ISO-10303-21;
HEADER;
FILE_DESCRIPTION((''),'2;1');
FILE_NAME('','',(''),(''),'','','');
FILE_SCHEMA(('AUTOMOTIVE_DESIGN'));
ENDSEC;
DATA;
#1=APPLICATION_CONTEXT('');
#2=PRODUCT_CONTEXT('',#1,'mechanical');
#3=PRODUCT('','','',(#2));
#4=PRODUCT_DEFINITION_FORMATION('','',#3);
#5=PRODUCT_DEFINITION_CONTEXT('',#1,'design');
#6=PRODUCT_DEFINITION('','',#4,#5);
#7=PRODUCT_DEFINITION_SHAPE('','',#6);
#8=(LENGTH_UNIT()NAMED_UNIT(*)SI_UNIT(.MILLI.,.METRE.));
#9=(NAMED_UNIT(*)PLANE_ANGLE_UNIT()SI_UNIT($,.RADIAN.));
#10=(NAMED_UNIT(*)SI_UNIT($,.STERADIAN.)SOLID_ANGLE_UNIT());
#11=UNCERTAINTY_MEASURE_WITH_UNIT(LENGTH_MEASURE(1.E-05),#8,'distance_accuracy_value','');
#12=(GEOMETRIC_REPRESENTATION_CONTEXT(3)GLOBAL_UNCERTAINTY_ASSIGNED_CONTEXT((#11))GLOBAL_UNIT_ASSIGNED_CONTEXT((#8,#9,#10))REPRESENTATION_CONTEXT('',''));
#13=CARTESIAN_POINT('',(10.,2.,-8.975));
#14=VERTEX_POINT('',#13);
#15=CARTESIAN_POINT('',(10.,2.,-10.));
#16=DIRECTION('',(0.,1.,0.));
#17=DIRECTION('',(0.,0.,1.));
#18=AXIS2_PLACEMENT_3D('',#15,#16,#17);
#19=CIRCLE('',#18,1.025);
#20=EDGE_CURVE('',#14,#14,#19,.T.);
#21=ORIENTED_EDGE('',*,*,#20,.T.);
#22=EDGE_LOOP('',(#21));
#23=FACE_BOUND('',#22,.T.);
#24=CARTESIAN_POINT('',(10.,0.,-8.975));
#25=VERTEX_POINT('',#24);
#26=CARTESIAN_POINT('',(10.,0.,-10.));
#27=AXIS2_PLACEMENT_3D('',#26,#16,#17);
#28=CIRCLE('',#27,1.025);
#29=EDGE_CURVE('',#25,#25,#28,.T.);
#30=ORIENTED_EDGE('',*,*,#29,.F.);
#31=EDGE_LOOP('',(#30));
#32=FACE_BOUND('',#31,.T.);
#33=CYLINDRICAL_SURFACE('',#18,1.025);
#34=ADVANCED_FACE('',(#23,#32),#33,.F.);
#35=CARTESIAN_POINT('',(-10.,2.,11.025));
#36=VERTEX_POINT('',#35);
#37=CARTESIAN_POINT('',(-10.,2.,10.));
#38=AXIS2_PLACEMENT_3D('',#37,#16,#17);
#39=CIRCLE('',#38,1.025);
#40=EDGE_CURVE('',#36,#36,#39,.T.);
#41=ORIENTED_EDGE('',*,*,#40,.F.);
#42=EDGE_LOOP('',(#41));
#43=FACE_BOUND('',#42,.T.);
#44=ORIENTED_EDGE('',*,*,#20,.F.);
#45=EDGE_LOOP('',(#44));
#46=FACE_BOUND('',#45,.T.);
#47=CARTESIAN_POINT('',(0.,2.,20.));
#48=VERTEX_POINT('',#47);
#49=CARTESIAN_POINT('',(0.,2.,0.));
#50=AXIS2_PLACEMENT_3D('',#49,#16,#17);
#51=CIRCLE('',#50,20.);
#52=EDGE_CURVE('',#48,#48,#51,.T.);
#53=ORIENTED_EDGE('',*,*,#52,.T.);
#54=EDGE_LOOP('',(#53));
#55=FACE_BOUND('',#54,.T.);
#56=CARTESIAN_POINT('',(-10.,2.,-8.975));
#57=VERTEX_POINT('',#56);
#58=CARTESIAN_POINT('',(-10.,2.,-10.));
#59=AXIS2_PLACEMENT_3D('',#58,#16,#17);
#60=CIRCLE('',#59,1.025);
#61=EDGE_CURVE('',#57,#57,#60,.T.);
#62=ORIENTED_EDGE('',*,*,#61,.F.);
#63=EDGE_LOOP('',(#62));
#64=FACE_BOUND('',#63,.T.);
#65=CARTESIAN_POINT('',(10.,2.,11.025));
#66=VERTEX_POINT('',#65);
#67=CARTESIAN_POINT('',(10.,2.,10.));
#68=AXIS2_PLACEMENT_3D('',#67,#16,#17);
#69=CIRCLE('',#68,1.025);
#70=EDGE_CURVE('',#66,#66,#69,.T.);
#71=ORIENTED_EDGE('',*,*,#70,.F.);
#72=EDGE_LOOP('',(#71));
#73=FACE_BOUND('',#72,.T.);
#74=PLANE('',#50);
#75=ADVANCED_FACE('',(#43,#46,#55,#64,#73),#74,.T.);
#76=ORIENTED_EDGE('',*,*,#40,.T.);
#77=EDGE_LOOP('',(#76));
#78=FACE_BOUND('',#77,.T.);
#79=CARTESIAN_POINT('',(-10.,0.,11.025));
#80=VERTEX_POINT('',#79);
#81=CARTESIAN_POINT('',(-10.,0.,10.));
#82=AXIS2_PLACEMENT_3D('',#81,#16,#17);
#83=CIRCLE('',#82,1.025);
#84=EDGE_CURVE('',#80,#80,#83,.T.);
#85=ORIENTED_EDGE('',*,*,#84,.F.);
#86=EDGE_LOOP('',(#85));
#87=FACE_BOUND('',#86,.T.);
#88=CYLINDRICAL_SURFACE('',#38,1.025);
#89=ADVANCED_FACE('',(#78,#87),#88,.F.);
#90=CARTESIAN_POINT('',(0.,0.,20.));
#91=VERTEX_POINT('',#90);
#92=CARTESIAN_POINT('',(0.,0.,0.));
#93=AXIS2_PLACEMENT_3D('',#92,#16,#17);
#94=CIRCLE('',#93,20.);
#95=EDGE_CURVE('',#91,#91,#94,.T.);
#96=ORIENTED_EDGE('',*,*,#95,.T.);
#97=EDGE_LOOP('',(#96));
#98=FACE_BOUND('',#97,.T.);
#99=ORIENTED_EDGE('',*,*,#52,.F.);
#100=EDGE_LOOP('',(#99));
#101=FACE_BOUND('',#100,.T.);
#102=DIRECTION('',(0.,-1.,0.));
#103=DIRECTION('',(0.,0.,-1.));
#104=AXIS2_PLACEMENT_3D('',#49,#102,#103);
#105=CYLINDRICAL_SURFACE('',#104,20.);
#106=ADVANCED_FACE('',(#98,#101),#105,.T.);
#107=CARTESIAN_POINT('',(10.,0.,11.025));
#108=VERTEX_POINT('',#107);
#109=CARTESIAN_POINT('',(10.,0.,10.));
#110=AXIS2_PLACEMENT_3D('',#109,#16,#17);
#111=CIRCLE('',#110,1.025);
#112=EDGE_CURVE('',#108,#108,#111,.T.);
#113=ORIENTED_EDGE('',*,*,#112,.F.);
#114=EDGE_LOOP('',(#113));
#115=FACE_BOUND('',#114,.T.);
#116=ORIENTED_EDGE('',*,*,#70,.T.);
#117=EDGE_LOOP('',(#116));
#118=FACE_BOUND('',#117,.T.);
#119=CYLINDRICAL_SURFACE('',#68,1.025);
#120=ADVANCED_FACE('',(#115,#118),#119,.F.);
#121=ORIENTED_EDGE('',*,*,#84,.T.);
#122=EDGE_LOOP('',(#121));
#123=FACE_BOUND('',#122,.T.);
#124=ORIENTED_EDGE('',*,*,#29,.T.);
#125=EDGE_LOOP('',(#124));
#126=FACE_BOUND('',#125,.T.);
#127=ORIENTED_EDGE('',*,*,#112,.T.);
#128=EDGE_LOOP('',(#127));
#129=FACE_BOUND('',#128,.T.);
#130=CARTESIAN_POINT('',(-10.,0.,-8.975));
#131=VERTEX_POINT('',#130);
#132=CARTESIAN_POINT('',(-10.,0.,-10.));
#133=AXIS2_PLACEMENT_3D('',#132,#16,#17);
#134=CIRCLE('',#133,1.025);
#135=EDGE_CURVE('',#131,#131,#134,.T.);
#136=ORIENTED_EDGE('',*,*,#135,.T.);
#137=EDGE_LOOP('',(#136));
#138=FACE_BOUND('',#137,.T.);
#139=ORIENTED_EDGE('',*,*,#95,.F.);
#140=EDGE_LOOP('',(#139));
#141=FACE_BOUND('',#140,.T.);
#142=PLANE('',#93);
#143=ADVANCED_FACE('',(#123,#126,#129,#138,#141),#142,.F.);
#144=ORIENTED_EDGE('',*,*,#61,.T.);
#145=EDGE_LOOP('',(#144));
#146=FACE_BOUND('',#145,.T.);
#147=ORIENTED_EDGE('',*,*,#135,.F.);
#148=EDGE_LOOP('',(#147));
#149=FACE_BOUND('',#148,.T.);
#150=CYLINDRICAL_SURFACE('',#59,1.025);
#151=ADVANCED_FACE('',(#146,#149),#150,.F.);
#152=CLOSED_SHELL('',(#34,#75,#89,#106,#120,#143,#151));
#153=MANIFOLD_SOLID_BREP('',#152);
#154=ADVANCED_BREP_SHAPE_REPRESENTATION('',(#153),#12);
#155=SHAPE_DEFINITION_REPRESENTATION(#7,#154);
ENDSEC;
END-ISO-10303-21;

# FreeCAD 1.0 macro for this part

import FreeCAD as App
import Part
import Sketcher

V = App.Vector
Q = App.Units.Quantity

doc = App.newDocument("Part")
body = doc.addObject("PartDesign::Body", "Body")

# Sketch on XZ plane
sketch1 = body.newObject("Sketcher::SketchObject", "Sketch")
sketch1.AttachmentSupport = (doc.getObject("XZ_Plane"), [""])
sketch1.MapMode = "FlatFace"
sketch1.addGeometry(Part.Circle(V(0, 0, 0), V(0, 0, 1), 20), False)
sketch1.addConstraint([
    Sketcher.Constraint("Coincident", 0, 3, -1, 1),
    Sketcher.Constraint("Diameter", 0, Q("40 mm")),
])
pad1 = body.newObject("PartDesign::Pad", "Pad")
pad1.Profile = sketch1
pad1.Length = 2
pad1.Reversed = True

# Sketch on XZ plane
sketch2 = body.newObject("Sketcher::SketchObject", "Sketch001")
sketch2.AttachmentSupport = (doc.getObject("XZ_Plane"), [""])
sketch2.MapMode = "FlatFace"
sketch2.AttachmentOffset = App.Placement(V(0, 0, -2), App.Rotation())
sketch2.addGeometry([
    Part.Circle(V(-10, -10, 0), V(0, 0, 1), 1),
    Part.Circle(V(10, -10, 0), V(0, 0, 1), 1),
    Part.Circle(V(-10, 10, 0), V(0, 0, 1), 1),
    Part.Circle(V(10, 10, 0), V(0, 0, 1), 1),
], False)
sketch2.addConstraint([
    Sketcher.Constraint("Equal", 0, 1),
    Sketcher.Constraint("Equal", 1, 2),
    Sketcher.Constraint("Equal", 2, 3),
    Sketcher.Constraint("Symmetric", 1, 3, 2, 3, -1, 1),
    Sketcher.Constraint("Symmetric", 0, 3, 3, 3, -1, 1),
    Sketcher.Constraint("Symmetric", 0, 3, 1, 3, -2),
    Sketcher.Constraint("Diameter", 0, Q("2.05 mm")),
    Sketcher.Constraint("DistanceX", 0, 3, -1, 1, Q("10 mm")),
    Sketcher.Constraint("DistanceY", 0, 3, -1, 1, Q("10 mm")),
])
doc.recompute()
hole = body.newObject("PartDesign::Hole", "Hole")
hole.Profile = sketch2
hole.ThreadType = "None"
hole.Diameter = 2.05
hole.DepthType = "ThroughAll"
hole.Reversed = True

doc.recompute()
